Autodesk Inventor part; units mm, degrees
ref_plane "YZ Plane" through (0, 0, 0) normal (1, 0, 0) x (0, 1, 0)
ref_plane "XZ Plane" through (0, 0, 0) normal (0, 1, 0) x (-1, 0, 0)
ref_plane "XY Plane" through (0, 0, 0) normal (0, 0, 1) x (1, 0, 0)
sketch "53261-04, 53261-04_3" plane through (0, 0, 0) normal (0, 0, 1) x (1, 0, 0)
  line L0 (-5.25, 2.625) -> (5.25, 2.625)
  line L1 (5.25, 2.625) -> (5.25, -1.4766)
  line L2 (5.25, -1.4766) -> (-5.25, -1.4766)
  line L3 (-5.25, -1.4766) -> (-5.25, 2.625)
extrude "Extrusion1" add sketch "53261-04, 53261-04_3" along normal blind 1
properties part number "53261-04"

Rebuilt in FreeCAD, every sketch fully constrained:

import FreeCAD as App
import Part
import Sketcher
Q = App.Units.Quantity


def add_polygon(sketch, points):
    """Adds a closed chain of lines whose ends are joined by coincident constraints."""
    first, n = sketch.GeometryCount, len(points)
    for a, b in zip(points, points[1:] + points[:1]):
        sketch.addGeometry(Part.LineSegment(App.Vector(*a, 0), App.Vector(*b, 0)), False)
    for i in range(n):
        sketch.addConstraint(Sketcher.Constraint("Coincident", first + i, 2, first + (i + 1) % n, 1))

doc = App.newDocument("Part")
body = doc.addObject("PartDesign::Body", "Body")

# Sketch on XY plane
sketch1 = doc.addObject("Sketcher::SketchObject", "Sketch")
body.addObject(sketch1)
sketch1.AttachmentSupport = (doc.XY_Plane, [""])
sketch1.MapMode = "FlatFace"
add_polygon(sketch1, [(5.25, 2.625), (-5.25, 2.625), (-5.25, -1.4766), (5.25, -1.4766)])  # lines 0-3
sketch1.addConstraint(Sketcher.Constraint("Horizontal", 0))
sketch1.addConstraint(Sketcher.Constraint("Vertical", 1))
sketch1.addConstraint(Sketcher.Constraint("Horizontal", 2))
sketch1.addConstraint(Sketcher.Constraint("Vertical", 3))
sketch1.addConstraint(Sketcher.Constraint("DistanceX", 0, 2, 0, 1, Q("10.5 mm")))
sketch1.addConstraint(Sketcher.Constraint("DistanceX", 0, 2, -1, 1, Q("5.25 mm")))
sketch1.addConstraint(Sketcher.Constraint("DistanceY", 1, 2, 1, 1, Q("4.1016 mm")))
sketch1.addConstraint(Sketcher.Constraint("DistanceY", -1, 1, 0, 2, Q("2.625 mm")))
pad1 = doc.addObject("PartDesign::Pad", "Pad")
body.addObject(pad1)
pad1.Profile = sketch1
pad1.Length = 1

doc.recompute()
